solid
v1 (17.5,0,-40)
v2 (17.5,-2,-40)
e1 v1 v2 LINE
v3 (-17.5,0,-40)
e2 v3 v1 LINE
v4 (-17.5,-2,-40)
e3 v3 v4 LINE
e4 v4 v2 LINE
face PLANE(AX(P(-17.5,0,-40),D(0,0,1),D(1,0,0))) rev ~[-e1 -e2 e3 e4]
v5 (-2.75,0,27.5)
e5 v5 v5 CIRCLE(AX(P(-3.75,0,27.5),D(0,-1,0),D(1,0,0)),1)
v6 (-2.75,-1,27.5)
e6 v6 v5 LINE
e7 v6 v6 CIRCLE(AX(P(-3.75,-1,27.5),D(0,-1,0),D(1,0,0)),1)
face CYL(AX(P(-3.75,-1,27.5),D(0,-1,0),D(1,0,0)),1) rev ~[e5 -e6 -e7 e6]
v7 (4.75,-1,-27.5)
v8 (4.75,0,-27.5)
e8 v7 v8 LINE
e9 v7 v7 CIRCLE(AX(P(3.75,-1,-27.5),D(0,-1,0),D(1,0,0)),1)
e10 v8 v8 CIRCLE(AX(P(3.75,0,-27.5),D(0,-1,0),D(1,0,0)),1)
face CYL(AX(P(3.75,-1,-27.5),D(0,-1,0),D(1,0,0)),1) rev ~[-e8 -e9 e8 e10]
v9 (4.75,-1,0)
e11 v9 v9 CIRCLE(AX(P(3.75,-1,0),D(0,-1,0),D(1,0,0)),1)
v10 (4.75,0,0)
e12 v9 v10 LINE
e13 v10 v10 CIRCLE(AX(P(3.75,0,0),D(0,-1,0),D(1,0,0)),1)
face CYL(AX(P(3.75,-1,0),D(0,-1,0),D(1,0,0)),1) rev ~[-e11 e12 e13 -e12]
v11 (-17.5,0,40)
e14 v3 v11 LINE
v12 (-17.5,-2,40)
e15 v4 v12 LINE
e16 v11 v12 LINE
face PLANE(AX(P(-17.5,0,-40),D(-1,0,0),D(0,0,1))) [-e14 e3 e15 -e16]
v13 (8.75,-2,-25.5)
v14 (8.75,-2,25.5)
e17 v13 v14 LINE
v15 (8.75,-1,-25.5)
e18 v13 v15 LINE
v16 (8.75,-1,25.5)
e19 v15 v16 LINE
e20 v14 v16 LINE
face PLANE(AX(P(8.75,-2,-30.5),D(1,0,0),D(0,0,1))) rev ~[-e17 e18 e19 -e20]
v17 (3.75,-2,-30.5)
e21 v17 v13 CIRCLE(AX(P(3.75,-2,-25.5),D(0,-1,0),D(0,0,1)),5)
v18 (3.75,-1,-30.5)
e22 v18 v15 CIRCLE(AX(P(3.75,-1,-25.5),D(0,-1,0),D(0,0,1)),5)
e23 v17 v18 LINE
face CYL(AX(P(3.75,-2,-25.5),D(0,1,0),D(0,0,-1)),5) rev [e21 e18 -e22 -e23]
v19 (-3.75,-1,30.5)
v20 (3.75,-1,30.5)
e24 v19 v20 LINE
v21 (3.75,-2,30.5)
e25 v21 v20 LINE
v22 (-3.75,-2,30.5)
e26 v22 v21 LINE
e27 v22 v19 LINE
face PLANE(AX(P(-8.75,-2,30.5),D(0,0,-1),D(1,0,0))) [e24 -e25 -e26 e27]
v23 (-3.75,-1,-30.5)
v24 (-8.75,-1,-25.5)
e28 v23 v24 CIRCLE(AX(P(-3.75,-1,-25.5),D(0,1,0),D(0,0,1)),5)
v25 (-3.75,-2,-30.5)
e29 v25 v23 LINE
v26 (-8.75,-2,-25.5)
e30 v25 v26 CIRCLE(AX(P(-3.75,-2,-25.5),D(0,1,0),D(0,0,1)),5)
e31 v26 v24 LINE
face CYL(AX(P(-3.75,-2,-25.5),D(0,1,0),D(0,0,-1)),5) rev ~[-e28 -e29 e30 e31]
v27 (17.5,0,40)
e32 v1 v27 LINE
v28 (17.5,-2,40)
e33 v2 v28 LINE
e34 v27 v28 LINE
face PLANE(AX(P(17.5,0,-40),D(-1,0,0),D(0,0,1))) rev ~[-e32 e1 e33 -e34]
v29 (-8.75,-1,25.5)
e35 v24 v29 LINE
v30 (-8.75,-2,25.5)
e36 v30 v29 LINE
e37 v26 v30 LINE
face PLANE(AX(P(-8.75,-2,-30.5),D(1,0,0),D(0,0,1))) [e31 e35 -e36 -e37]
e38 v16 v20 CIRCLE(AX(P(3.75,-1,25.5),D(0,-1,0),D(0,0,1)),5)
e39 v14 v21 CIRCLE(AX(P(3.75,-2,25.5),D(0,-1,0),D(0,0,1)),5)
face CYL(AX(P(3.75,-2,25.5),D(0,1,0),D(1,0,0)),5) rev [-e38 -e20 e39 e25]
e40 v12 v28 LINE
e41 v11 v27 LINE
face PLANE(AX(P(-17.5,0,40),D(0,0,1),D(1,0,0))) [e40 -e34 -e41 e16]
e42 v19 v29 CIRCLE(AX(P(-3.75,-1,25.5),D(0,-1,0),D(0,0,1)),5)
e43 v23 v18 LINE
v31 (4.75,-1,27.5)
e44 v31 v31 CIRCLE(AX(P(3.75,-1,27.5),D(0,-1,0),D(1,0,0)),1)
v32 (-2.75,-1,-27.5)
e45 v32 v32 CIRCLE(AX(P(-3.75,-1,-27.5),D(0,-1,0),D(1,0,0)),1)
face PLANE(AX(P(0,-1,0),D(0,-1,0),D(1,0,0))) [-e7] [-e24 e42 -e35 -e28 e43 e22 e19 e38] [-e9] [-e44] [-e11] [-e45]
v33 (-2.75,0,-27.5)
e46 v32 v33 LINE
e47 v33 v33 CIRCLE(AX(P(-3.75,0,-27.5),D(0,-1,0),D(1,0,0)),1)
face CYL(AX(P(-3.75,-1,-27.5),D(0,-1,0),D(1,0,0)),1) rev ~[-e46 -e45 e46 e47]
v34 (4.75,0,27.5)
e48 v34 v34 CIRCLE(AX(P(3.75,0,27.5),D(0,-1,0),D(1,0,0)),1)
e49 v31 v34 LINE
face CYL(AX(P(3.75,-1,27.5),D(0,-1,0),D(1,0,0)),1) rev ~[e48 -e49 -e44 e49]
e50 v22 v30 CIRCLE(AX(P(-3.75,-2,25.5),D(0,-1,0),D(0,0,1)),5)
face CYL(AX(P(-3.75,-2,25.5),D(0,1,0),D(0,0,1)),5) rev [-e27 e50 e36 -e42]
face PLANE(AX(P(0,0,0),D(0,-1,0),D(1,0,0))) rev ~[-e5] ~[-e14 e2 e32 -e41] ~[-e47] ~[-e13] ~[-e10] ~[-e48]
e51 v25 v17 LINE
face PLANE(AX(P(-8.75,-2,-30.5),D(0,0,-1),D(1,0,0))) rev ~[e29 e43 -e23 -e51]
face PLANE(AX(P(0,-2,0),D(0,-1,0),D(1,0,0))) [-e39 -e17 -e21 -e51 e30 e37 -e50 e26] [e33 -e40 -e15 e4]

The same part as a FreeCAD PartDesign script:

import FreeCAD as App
import Part
import Sketcher

V = App.Vector
Q = App.Units.Quantity


def edges_at(feature, points):
    """Names of the edges that pass closest to the given points."""
    edges = feature.Shape.Edges
    near = lambda p: min(range(len(edges)), key=lambda i: edges[i].distToShape(Part.Vertex(*p))[0])
    return sorted({f"Edge{near(p) + 1}" for p in points})

doc = App.newDocument("Part")
body = doc.addObject("PartDesign::Body", "Body")

# Sketch on XZ plane
sketch1 = doc.addObject("Sketcher::SketchObject", "Sketch")
body.addObject(sketch1)
sketch1.AttachmentSupport = (doc.XZ_Plane, [""])
sketch1.MapMode = "FlatFace"
sketch1.addGeometry([
    Part.LineSegment(V(-18, 40, 0), V(-18, -40, 0)),
    Part.LineSegment(V(-18, -40, 0), V(18, -40, 0)),
    Part.LineSegment(V(18, -40, 0), V(18, 40, 0)),
    Part.LineSegment(V(18, 40, 0), V(-18, 40, 0)),
], False)
sketch1.addConstraint([
    Sketcher.Constraint("Coincident", 0, 2, 1, 1),
    Sketcher.Constraint("Coincident", 1, 2, 2, 1),
    Sketcher.Constraint("Coincident", 2, 2, 3, 1),
    Sketcher.Constraint("Coincident", 3, 2, 0, 1),
    Sketcher.Constraint("Vertical", 0),
    Sketcher.Constraint("Horizontal", 1),
    Sketcher.Constraint("Vertical", 2),
    Sketcher.Constraint("Horizontal", 3),
    Sketcher.Constraint("Symmetric", 0, 2, 2, 2, -1, 1),
    Sketcher.Constraint("DistanceX", 1, 1, 1, 2, Q("35 mm")),
    Sketcher.Constraint("DistanceY", 0, 2, 0, 1, Q("80 mm")),
])
pad1 = doc.addObject("PartDesign::Pad", "Pad")
body.addObject(pad1)
pad1.Profile = sketch1
pad1.Length = 2

# Sketch on XZ plane
sketch2 = doc.addObject("Sketcher::SketchObject", "Sketch001")
body.addObject(sketch2)
sketch2.AttachmentSupport = (doc.XZ_Plane, [""])
sketch2.MapMode = "FlatFace"
sketch2.AttachmentOffset = App.Placement(V(0, 0, 2), App.Rotation())
sketch2.addGeometry([
    Part.LineSegment(V(-9, 30, 0), V(-9, -30, 0)),
    Part.LineSegment(V(-9, -30, 0), V(9, -30, 0)),
    Part.LineSegment(V(9, -30, 0), V(9, 30, 0)),
    Part.LineSegment(V(9, 30, 0), V(-9, 30, 0)),
], False)
sketch2.addConstraint([
    Sketcher.Constraint("Coincident", 0, 2, 1, 1),
    Sketcher.Constraint("Coincident", 1, 2, 2, 1),
    Sketcher.Constraint("Coincident", 2, 2, 3, 1),
    Sketcher.Constraint("Coincident", 3, 2, 0, 1),
    Sketcher.Constraint("Vertical", 0),
    Sketcher.Constraint("Horizontal", 1),
    Sketcher.Constraint("Vertical", 2),
    Sketcher.Constraint("Horizontal", 3),
    Sketcher.Constraint("Symmetric", 0, 2, 2, 2, -1, 1),
    Sketcher.Constraint("DistanceY", 0, 2, 0, 1, Q("61 mm")),
    Sketcher.Constraint("DistanceX", 1, 1, 1, 2, Q("17.5 mm")),
])
pocket1 = doc.addObject("PartDesign::Pocket", "Pocket")
body.addObject(pocket1)
pocket1.Profile = sketch2
pocket1.Length = 1

# Sketch on XZ plane
sketch3 = doc.addObject("Sketcher::SketchObject", "Sketch002")
body.addObject(sketch3)
sketch3.AttachmentSupport = (doc.XZ_Plane, [""])
sketch3.MapMode = "FlatFace"
sketch3.AttachmentOffset = App.Placement(V(0, 0, 1), App.Rotation())
sketch3.addGeometry([
    Part.Circle(V(3.8, 27.5, 0), V(0, 0, 1), 1),  # 0
    Part.Circle(V(3.8, 0, 0), V(0, 0, 1), 1),  # 1
    Part.Circle(V(3.8, -27.5, 0), V(0, 0, 1), 1),  # 2
    Part.Circle(V(-3.8, 27.5, 0), V(0, 0, 1), 1),  # 3
    Part.Circle(V(-3.8, -27.5, 0), V(0, 0, 1), 1),  # 4
], False)
sketch3.addConstraint([
    Sketcher.Constraint("Equal", 0, 1),
    Sketcher.Constraint("Equal", 1, 2),
    Sketcher.Constraint("Equal", 2, 3),
    Sketcher.Constraint("Equal", 3, 4),
    Sketcher.Constraint("Symmetric", 2, 3, 3, 3, -1, 1),
    Sketcher.Constraint("Symmetric", 0, 3, 4, 3, -1, 1),
    Sketcher.Constraint("Symmetric", 0, 3, 3, 3, -2),
    Sketcher.Constraint("PointOnObject", 1, 3, -1),
    Sketcher.Constraint("Vertical", 0, 3, 1, 3),
    Sketcher.Constraint("Diameter", 0, Q("2 mm")),
    Sketcher.Constraint("DistanceY", 2, 3, 0, 3, Q("55 mm")),
    Sketcher.Constraint("DistanceX", 3, 3, 0, 3, Q("7.5 mm")),
])
pocket2 = doc.addObject("PartDesign::Pocket", "Pocket001")
body.addObject(pocket2)
pocket2.Profile = sketch3
pocket2.Length = 25
doc.recompute()

fillet = doc.addObject("PartDesign::Fillet", "Fillet")
body.addObject(fillet)
fillet.Base = (pocket2, edges_at(pocket2, [
    (-8.75, -1.5, -30.5),
    (8.75, -1.5, -30.5),
    (-8.75, -1.5, 30.5),
    (8.75, -1.5, 30.5),
]))
fillet.Radius = 5

doc.recompute()
